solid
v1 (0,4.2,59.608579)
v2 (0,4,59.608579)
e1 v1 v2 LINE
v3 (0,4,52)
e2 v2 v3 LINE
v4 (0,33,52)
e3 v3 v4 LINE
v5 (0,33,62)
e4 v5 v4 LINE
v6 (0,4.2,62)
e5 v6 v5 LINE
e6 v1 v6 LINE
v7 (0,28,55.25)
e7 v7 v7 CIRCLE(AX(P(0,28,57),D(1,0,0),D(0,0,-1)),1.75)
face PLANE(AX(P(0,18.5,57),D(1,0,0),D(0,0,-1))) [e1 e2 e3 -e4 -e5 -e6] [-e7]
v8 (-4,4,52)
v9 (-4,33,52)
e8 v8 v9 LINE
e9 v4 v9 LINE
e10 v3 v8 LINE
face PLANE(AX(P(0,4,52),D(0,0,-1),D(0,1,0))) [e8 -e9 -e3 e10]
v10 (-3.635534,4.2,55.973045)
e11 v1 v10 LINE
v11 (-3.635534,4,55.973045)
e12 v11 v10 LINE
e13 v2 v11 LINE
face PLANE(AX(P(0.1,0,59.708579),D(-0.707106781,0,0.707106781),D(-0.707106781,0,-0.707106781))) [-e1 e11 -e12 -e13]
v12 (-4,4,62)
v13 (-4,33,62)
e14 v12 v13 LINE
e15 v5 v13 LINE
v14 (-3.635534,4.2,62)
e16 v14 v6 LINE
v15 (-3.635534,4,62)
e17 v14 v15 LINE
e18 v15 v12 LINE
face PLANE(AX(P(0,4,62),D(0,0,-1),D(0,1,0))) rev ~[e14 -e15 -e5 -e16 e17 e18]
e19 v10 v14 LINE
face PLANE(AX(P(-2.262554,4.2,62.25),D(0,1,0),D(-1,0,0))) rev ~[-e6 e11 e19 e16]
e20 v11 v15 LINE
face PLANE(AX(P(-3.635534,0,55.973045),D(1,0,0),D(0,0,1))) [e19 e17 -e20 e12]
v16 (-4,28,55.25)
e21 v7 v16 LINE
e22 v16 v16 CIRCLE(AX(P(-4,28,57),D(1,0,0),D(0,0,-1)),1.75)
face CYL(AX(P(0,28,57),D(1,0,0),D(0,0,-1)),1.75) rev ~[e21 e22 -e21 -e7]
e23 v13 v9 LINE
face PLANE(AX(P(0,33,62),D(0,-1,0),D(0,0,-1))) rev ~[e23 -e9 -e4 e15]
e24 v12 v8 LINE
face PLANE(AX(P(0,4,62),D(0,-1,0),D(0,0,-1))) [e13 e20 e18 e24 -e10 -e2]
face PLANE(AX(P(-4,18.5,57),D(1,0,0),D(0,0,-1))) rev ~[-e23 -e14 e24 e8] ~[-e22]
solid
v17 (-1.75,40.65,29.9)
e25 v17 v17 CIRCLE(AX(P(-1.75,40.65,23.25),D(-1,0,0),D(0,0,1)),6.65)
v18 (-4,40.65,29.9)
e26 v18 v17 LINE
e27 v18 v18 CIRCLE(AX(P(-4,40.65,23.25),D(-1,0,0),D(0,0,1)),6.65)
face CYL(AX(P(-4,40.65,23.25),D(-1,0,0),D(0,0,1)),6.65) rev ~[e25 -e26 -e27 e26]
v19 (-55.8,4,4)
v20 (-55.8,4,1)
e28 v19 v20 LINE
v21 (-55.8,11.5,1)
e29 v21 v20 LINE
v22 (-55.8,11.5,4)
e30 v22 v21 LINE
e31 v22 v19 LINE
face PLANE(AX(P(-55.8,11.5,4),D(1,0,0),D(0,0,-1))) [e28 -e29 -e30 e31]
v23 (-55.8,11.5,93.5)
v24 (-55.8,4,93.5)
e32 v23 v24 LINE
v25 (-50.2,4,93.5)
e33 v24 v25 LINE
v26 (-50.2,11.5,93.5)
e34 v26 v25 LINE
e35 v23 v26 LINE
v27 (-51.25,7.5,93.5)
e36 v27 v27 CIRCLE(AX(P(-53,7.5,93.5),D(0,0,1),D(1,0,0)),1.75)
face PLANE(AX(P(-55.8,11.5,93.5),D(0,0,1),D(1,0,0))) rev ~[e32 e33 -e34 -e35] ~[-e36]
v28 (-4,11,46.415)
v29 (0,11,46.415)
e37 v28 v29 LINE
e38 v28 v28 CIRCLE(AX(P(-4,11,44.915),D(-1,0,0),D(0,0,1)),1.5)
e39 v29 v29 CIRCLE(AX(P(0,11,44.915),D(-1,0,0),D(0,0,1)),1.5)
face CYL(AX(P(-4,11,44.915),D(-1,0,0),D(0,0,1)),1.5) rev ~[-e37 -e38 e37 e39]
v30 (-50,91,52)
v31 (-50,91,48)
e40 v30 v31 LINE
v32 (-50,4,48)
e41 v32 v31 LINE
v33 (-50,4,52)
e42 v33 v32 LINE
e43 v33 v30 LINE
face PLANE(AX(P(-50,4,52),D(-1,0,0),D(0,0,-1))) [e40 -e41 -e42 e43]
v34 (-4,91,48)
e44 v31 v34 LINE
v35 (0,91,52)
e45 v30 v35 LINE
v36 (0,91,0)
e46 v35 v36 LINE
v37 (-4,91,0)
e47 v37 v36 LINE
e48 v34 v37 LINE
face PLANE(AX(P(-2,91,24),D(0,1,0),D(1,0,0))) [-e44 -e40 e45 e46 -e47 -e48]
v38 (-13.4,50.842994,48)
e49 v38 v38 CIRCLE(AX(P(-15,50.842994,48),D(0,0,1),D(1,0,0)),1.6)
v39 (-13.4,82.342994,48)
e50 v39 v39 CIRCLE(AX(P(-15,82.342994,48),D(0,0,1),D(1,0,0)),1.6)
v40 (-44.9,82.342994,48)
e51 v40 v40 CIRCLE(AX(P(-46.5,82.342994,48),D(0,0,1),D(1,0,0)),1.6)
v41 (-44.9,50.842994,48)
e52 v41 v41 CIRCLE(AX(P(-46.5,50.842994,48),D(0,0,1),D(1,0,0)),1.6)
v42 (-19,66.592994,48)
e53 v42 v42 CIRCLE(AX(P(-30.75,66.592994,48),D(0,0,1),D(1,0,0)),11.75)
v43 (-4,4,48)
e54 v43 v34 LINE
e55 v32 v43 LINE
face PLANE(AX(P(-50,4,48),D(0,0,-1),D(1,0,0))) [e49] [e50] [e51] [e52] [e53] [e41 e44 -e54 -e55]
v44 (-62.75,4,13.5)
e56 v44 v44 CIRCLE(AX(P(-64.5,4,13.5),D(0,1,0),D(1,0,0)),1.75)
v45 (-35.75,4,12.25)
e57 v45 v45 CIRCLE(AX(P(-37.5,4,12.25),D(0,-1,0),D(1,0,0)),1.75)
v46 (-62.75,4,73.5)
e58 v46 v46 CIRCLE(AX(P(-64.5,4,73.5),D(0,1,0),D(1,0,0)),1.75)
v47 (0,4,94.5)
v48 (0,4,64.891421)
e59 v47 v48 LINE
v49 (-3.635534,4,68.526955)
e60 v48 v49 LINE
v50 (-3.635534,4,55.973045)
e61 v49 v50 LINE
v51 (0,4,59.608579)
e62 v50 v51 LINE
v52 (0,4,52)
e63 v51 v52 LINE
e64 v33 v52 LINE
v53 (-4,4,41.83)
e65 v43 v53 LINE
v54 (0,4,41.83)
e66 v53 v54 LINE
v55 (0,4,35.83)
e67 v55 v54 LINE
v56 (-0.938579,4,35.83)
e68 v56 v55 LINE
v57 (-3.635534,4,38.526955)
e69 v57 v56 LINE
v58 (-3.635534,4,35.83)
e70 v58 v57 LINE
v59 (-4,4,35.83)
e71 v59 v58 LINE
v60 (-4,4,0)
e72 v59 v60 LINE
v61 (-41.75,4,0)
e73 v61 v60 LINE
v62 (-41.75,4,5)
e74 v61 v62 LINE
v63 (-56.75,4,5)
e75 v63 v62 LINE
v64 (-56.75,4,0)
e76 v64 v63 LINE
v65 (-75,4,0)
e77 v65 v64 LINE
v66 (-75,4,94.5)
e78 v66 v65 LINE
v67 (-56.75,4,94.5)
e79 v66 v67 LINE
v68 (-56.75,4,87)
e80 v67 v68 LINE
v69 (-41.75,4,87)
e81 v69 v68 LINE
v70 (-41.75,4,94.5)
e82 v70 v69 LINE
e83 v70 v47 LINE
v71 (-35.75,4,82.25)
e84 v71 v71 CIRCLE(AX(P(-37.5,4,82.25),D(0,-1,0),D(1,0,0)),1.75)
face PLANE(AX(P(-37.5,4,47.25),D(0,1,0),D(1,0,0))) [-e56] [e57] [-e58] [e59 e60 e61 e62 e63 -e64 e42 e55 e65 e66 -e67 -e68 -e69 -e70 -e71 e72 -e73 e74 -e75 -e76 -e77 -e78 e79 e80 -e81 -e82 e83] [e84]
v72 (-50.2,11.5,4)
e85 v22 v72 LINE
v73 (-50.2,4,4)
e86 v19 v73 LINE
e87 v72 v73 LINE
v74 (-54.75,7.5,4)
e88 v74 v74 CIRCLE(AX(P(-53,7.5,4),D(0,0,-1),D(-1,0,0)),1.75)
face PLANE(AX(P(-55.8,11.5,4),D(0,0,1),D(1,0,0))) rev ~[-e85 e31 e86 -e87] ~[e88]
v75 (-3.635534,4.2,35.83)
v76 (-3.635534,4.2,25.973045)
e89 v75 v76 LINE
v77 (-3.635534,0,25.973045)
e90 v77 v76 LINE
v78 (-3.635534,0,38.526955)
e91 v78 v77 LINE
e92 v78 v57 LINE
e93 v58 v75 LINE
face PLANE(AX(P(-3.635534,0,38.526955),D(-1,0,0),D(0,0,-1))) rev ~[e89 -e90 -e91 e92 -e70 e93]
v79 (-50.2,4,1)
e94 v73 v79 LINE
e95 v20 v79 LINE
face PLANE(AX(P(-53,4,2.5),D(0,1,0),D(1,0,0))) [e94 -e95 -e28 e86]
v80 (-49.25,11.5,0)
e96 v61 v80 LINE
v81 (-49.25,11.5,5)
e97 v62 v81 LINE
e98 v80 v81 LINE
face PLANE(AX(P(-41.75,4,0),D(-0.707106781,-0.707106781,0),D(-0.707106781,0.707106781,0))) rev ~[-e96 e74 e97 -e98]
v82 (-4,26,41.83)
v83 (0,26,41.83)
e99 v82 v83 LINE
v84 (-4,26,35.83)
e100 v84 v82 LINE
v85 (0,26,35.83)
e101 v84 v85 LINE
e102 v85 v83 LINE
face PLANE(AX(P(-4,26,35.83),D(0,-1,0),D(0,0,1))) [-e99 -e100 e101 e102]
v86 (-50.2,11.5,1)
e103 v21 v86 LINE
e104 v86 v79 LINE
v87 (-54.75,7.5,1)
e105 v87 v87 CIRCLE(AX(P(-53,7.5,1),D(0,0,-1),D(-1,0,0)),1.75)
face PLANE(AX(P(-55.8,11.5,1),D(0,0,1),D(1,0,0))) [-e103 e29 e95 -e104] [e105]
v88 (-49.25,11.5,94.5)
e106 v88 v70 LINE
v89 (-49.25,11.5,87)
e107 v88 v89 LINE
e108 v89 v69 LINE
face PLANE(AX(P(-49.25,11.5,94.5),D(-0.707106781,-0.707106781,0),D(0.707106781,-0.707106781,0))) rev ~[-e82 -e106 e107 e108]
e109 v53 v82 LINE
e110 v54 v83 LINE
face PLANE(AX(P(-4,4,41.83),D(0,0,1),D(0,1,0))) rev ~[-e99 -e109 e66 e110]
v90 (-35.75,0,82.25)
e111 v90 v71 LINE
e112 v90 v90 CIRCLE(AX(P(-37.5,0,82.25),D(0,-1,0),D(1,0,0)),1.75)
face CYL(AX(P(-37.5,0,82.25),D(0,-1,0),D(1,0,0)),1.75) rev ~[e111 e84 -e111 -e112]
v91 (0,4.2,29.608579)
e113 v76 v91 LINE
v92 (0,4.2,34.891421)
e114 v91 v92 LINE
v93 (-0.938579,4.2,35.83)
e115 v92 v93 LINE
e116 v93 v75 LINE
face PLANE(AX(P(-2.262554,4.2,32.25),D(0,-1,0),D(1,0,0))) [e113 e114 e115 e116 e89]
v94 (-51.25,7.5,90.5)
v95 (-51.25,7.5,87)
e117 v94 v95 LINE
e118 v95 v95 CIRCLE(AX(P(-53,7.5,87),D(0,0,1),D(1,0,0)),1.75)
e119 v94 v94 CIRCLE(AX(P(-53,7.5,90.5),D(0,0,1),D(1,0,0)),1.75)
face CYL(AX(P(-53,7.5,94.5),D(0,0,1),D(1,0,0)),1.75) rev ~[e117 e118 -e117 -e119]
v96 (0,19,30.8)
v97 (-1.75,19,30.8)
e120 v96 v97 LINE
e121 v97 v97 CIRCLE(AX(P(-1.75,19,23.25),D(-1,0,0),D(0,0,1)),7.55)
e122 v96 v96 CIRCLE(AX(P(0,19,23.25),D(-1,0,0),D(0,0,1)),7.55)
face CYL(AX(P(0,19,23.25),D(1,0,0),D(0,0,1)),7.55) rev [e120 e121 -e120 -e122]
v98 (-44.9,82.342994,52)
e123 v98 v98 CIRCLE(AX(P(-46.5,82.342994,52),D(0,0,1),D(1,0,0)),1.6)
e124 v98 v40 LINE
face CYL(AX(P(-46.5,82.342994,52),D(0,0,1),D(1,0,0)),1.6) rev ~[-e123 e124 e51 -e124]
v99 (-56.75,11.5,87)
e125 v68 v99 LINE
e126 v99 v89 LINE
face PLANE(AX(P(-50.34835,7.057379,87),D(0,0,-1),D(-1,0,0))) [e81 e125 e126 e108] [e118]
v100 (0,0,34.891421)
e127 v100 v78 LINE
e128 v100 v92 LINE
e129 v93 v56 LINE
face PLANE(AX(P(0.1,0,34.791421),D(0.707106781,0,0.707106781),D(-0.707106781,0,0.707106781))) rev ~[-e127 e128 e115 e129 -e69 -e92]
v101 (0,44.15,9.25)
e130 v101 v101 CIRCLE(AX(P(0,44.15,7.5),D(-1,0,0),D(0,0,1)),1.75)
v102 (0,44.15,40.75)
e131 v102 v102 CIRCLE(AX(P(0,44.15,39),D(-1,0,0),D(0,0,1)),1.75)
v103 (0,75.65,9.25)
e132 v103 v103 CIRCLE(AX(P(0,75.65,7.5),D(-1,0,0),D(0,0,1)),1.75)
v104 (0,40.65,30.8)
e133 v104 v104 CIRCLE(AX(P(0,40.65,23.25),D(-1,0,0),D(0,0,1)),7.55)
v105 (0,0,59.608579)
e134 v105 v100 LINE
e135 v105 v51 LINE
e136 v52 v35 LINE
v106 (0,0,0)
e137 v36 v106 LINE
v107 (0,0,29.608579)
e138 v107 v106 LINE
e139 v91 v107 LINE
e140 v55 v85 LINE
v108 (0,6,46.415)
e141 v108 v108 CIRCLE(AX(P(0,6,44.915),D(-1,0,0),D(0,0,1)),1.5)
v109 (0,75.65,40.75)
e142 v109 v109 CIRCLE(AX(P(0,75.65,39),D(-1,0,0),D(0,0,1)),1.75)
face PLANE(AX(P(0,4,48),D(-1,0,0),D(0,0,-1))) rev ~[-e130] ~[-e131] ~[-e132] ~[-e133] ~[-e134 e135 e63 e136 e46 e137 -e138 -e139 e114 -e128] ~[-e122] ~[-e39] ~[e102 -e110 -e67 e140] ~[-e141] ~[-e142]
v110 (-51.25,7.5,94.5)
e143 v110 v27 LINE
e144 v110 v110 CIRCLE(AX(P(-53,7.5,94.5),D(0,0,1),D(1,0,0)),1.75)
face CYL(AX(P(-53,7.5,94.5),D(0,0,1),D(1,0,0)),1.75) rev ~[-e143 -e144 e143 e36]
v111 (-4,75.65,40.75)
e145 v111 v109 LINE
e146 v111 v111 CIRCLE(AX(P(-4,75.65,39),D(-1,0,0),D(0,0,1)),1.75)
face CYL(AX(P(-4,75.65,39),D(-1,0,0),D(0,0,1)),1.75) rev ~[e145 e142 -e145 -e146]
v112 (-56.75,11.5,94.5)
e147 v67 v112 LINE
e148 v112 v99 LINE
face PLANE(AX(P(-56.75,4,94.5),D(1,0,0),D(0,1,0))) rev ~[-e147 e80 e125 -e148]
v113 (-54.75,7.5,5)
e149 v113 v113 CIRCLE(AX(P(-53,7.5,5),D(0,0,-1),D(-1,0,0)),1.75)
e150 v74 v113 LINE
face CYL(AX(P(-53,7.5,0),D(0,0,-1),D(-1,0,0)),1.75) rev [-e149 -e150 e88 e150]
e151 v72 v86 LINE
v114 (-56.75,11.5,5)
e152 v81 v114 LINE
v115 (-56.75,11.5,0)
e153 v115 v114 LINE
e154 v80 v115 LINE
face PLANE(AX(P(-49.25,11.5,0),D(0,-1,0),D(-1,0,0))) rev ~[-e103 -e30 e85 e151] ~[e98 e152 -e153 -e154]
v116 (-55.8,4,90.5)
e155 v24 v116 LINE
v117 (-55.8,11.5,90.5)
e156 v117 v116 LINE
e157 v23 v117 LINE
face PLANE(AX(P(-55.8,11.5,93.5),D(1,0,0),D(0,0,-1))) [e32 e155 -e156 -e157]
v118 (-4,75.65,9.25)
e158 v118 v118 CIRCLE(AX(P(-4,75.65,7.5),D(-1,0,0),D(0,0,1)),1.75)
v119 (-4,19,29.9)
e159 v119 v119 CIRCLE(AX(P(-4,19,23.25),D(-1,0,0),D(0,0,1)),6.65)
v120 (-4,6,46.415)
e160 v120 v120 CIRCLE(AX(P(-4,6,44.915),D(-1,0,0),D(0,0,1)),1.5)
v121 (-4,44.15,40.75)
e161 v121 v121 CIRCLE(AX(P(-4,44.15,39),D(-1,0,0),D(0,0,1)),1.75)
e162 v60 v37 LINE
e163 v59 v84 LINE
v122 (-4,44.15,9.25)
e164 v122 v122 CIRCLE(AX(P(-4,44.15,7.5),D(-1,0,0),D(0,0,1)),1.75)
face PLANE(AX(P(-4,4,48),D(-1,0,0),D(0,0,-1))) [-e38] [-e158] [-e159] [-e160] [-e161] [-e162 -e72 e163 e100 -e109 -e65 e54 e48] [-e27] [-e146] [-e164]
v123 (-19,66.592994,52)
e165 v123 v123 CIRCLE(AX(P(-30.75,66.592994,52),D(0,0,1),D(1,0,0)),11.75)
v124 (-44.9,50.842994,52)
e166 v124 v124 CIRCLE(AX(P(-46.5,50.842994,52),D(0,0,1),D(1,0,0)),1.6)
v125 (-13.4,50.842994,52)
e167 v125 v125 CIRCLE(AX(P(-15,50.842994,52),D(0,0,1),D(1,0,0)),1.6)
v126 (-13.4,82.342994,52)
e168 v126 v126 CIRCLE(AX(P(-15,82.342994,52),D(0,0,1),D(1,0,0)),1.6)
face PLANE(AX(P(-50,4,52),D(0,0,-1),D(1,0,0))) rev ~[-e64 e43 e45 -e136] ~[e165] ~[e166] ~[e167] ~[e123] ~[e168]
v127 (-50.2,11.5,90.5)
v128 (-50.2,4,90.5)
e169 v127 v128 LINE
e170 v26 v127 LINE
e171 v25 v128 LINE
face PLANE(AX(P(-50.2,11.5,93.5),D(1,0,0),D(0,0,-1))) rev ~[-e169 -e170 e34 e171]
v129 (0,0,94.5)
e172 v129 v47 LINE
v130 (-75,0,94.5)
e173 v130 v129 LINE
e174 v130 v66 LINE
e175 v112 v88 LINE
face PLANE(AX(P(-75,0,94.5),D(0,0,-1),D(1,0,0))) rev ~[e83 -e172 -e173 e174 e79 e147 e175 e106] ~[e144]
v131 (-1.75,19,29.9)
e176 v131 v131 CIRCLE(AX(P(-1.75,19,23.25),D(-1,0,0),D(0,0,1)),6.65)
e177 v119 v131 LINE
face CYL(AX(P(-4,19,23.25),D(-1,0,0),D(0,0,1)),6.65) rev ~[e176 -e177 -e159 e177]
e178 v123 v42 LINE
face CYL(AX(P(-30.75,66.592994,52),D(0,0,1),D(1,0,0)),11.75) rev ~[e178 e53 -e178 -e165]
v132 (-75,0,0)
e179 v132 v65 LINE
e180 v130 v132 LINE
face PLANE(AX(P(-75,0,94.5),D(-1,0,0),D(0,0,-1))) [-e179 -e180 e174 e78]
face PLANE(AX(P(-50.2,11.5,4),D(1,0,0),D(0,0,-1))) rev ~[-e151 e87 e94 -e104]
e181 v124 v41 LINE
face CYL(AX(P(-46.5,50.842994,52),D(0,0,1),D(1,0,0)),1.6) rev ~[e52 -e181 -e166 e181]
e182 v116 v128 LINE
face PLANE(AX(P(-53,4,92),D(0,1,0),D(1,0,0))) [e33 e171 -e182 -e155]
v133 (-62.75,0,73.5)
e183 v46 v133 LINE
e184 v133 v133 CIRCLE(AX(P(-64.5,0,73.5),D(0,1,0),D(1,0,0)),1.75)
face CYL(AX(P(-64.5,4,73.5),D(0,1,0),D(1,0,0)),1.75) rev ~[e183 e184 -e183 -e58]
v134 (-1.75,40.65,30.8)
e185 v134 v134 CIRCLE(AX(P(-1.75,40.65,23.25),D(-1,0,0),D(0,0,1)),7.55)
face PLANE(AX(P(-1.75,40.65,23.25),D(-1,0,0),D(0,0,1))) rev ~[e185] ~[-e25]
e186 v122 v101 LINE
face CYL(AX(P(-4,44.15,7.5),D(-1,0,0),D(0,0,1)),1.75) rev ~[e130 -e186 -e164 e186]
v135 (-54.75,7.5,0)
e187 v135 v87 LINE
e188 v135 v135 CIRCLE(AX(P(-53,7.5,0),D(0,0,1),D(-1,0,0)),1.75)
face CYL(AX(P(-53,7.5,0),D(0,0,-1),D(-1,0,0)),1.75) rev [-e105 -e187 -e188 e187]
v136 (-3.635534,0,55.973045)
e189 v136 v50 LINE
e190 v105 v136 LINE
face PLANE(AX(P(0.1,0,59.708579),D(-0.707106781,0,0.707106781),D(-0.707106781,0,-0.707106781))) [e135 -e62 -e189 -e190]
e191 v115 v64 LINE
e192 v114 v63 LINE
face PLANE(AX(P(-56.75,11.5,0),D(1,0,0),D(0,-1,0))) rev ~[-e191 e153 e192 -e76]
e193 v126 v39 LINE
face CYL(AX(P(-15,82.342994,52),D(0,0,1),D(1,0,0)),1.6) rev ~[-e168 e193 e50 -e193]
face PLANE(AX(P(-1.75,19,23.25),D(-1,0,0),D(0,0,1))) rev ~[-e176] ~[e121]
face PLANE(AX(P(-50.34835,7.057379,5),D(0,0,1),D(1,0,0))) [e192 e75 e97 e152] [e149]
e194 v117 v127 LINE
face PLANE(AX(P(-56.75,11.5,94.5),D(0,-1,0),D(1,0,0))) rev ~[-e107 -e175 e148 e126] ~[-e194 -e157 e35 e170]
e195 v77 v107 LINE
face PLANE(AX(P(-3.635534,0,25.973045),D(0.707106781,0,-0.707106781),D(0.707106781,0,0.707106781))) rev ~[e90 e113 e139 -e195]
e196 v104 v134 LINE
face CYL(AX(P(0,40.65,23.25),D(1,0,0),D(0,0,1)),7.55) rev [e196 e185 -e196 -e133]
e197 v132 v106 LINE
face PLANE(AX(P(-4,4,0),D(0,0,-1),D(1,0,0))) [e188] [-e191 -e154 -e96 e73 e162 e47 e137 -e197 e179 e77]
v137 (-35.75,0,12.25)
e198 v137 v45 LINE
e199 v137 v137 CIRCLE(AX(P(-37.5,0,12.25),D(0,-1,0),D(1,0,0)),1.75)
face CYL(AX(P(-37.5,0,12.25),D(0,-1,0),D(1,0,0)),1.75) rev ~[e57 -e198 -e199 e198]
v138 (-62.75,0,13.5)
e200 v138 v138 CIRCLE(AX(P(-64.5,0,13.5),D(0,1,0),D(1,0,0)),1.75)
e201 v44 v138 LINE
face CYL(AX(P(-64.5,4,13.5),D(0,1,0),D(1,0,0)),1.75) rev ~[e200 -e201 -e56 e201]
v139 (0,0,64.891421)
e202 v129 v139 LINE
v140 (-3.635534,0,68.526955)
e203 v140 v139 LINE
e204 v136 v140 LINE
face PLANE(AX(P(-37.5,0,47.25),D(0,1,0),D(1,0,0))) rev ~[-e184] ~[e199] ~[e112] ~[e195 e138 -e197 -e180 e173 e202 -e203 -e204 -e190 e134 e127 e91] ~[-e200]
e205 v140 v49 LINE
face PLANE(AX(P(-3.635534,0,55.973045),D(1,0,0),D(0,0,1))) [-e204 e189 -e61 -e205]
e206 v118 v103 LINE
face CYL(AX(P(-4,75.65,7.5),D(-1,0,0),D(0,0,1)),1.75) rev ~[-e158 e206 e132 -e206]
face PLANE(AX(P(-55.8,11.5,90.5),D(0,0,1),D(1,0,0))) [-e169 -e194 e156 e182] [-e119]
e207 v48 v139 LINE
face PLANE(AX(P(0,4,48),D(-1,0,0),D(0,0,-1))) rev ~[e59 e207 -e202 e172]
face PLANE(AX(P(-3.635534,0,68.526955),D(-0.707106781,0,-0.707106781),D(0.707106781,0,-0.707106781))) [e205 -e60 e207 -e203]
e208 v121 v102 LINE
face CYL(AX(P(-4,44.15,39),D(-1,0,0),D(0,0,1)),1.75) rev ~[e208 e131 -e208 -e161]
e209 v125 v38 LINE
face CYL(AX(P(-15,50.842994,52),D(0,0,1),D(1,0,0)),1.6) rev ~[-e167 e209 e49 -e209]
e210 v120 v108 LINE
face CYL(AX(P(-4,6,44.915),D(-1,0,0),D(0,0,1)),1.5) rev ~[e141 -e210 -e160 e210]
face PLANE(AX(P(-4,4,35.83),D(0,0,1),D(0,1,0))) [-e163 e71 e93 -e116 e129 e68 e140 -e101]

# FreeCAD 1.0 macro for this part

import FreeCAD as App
import Part
import Sketcher
from FreeCAD import Vector
Q = App.Units.Quantity


def add_polygon(sketch, points):
    """Adds a closed chain of lines whose ends are joined by coincident constraints."""
    first, n = sketch.GeometryCount, len(points)
    for a, b in zip(points, points[1:] + points[:1]):
        sketch.addGeometry(Part.LineSegment(App.Vector(*a, 0), App.Vector(*b, 0)), False)
    for i in range(n):
        sketch.addConstraint(Sketcher.Constraint("Coincident", first + i, 2, first + (i + 1) % n, 1))

doc = App.newDocument("Part")
body = doc.addObject("PartDesign::Body", "Body")

sketch1 = body.newObject("Sketcher::SketchObject", "Sketch")
sketch1.AttachmentSupport = (doc.getObject("XZ_Plane"), [""])
sketch1.MapMode = "FlatFace"
add_polygon(sketch1, [(-75, 0), (-75, 94), (0, 94), (0, 0)])
sketch1.addConstraint(Sketcher.Constraint("Vertical", 0))
sketch1.addConstraint(Sketcher.Constraint("Horizontal", 1))
sketch1.addConstraint(Sketcher.Constraint("Vertical", 2))
sketch1.addConstraint(Sketcher.Constraint("Horizontal", 3))
sketch1.addConstraint(Sketcher.Constraint("Coincident", 2, 2, -1, 1))
sketch1.addConstraint(Sketcher.Constraint("DistanceX", 1, 1, 1, 2, 75.0))
sketch1.addConstraint(Sketcher.Constraint("DistanceY", 0, 1, 0, 2, 94.5))
pad1 = body.newObject("PartDesign::Pad", "Pad")
pad1.Profile = sketch1
pad1.Length = 4
pad1.Reversed = True

sketch2 = body.newObject("Sketcher::SketchObject", "Sketch001")
sketch2.AttachmentSupport = (doc.getObject("XZ_Plane"), [""])
sketch2.MapMode = "FlatFace"
sketch2.AttachmentOffset = App.Placement(Vector(0, 0, -4), App.Rotation())
add_polygon(sketch2, [(-50, 48), (-50, 52), (0, 52), (0, 48)])
sketch2.addConstraint(Sketcher.Constraint("Vertical", 0))
sketch2.addConstraint(Sketcher.Constraint("Horizontal", 1))
sketch2.addConstraint(Sketcher.Constraint("Vertical", 2))
sketch2.addConstraint(Sketcher.Constraint("Horizontal", 3))
sketch2.addConstraint(Sketcher.Constraint("PointOnObject", 1, 2, -2))
sketch2.addConstraint(Sketcher.Constraint("DistanceX", 1, 1, 1, 2, 50.0))
sketch2.addConstraint(Sketcher.Constraint("DistanceY", 0, 1, 0, 2, 4.0))
sketch2.addConstraint(Sketcher.Constraint("DistanceY", -1, 1, 0, 2, 52.0))
pad2 = body.newObject("PartDesign::Pad", "Pad001")
pad2.Profile = sketch2
pad2.Length = 87
pad2.Reversed = True

sketch3 = body.newObject("Sketcher::SketchObject", "Sketch002")
sketch3.AttachmentSupport = (doc.getObject("XZ_Plane"), [""])
sketch3.MapMode = "FlatFace"
sketch3.AttachmentOffset = App.Placement(Vector(0, 0, -4), App.Rotation())
add_polygon(sketch3, [(-4, 0), (-4, 48), (0, 48), (0, 0)])
sketch3.addConstraint(Sketcher.Constraint("Vertical", 0))
sketch3.addConstraint(Sketcher.Constraint("Horizontal", 1))
sketch3.addConstraint(Sketcher.Constraint("Vertical", 2))
sketch3.addConstraint(Sketcher.Constraint("Horizontal", 3))
sketch3.addConstraint(Sketcher.Constraint("Coincident", 2, 2, -1, 1))
sketch3.addConstraint(Sketcher.Constraint("DistanceX", 1, 1, 1, 2, 4.0))
sketch3.addConstraint(Sketcher.Constraint("DistanceY", 0, 1, 0, 2, 48.0))
pad3 = body.newObject("PartDesign::Pad", "Pad002")
pad3.Profile = sketch3
pad3.Length = 87
pad3.Reversed = True

sketch4 = body.newObject("Sketcher::SketchObject", "Sketch003")
sketch4.AttachmentSupport = (doc.getObject("XY_Plane"), [""])
sketch4.MapMode = "FlatFace"
sketch4.AttachmentOffset = App.Placement(Vector(0, 0, 52), App.Rotation())
sketch4.addGeometry(Part.Circle(Vector(-15, 82.3, 0), Vector(0, 0, 1), 1.6), False)
sketch4.addGeometry(Part.Circle(Vector(-46.5, 82.3, 0), Vector(0, 0, 1), 1.6), False)
sketch4.addGeometry(Part.Circle(Vector(-46.5, 50.8, 0), Vector(0, 0, 1), 1.6), False)
sketch4.addGeometry(Part.Circle(Vector(-15, 50.8, 0), Vector(0, 0, 1), 1.6), False)
sketch4.addGeometry(Part.Circle(Vector(-30.8, 66.6, 0), Vector(0, 0, 1), 11.8), False)
sketch4.addConstraint(Sketcher.Constraint("Equal", 0, 1))
sketch4.addConstraint(Sketcher.Constraint("Equal", 1, 2))
sketch4.addConstraint(Sketcher.Constraint("Equal", 2, 3))
sketch4.addConstraint(Sketcher.Constraint("Horizontal", 0, 3, 1, 3))
sketch4.addConstraint(Sketcher.Constraint("Horizontal", 2, 3, 3, 3))
sketch4.addConstraint(Sketcher.Constraint("Vertical", 1, 3, 2, 3))
sketch4.addConstraint(Sketcher.Constraint("Vertical", 0, 3, 3, 3))
sketch4.addConstraint(Sketcher.Constraint("Diameter", 0, 3.2))
sketch4.addConstraint(Sketcher.Constraint("Diameter", 4, 23.5))
sketch4.addConstraint(Sketcher.Constraint("DistanceX", 0, 3, -1, 1, 15.0))
sketch4.addConstraint(Sketcher.Constraint("DistanceX", 1, 3, -1, 1, 46.5))
sketch4.addConstraint(Sketcher.Constraint("DistanceY", 2, 3, 1, 3, 31.5))
sketch4.addConstraint(Sketcher.Constraint("DistanceX", 4, 3, -1, 1, 30.75))
sketch4.addConstraint(Sketcher.Constraint("DistanceY", 4, 3, 0, 3, 15.75))
sketch4.addConstraint(Sketcher.Constraint("DistanceY", -1, 1, 0, 3, 82.342994))
pocket1 = body.newObject("PartDesign::Pocket", "Pocket")
pocket1.Profile = sketch4
pocket1.Length = 5

sketch5 = body.newObject("Sketcher::SketchObject", "Sketch004")
sketch5.AttachmentSupport = (doc.getObject("YZ_Plane"), [""])
sketch5.MapMode = "FlatFace"
sketch5.AttachmentOffset = App.Placement(Vector(0, 0, -4), App.Rotation())
sketch5.addGeometry(Part.Circle(Vector(19, 23, 0), Vector(0, 0, 1), 7), False)
sketch5.addGeometry(Part.Circle(Vector(41, 23, 0), Vector(0, 0, 1), 7), False)
sketch5.addConstraint(Sketcher.Constraint("Equal", 0, 1))
sketch5.addConstraint(Sketcher.Constraint("Horizontal", 0, 3, 1, 3))
sketch5.addConstraint(Sketcher.Constraint("Diameter", 0, 13.3))
sketch5.addConstraint(Sketcher.Constraint("DistanceX", -1, 1, 0, 3, 19.0))
sketch5.addConstraint(Sketcher.Constraint("DistanceY", -1, 1, 0, 3, 23.25))
sketch5.addConstraint(Sketcher.Constraint("DistanceX", -1, 1, 1, 3, 40.65))
pocket2 = body.newObject("PartDesign::Pocket", "Pocket001")
pocket2.Profile = sketch5
pocket2.Length = 5
pocket2.Reversed = True

sketch6 = body.newObject("Sketcher::SketchObject", "Sketch005")
sketch6.AttachmentSupport = (doc.getObject("YZ_Plane"), [""])
sketch6.MapMode = "FlatFace"
sketch6.addGeometry(Part.Circle(Vector(19, 23, 0), Vector(0, 0, 1), 8), False)
sketch6.addGeometry(Part.Circle(Vector(41, 23, 0), Vector(0, 0, 1), 8), False)
sketch6.addConstraint(Sketcher.Constraint("Equal", 0, 1))
sketch6.addConstraint(Sketcher.Constraint("Horizontal", 0, 3, 1, 3))
sketch6.addConstraint(Sketcher.Constraint("Diameter", 0, 15.1))
sketch6.addConstraint(Sketcher.Constraint("DistanceX", -1, 1, 0, 3, 19.0))
sketch6.addConstraint(Sketcher.Constraint("DistanceY", -1, 1, 0, 3, 23.25))
sketch6.addConstraint(Sketcher.Constraint("DistanceX", -1, 1, 1, 3, 40.65))
pocket3 = body.newObject("PartDesign::Pocket", "Pocket002")
pocket3.Profile = sketch6
pocket3.Length = 1.75

sketch7 = body.newObject("Sketcher::SketchObject", "Sketch006")
sketch7.AttachmentSupport = (doc.getObject("YZ_Plane"), [""])
sketch7.MapMode = "FlatFace"
sketch7.AttachmentOffset = App.Placement(Vector(0, 0, -4), App.Rotation())
sketch7.addGeometry(Part.Circle(Vector(75.7, 7.5, 0), Vector(0, 0, 1), 1.8), False)
sketch7.addGeometry(Part.Circle(Vector(75.7, 39, 0), Vector(0, 0, 1), 1.8), False)
sketch7.addGeometry(Part.Circle(Vector(44.1, 7.5, 0), Vector(0, 0, 1), 1.8), False)
sketch7.addGeometry(Part.Circle(Vector(44.1, 39, 0), Vector(0, 0, 1), 1.8), False)
sketch7.addConstraint(Sketcher.Constraint("Equal", 0, 1))
sketch7.addConstraint(Sketcher.Constraint("Equal", 1, 2))
sketch7.addConstraint(Sketcher.Constraint("Equal", 2, 3))
sketch7.addConstraint(Sketcher.Constraint("Horizontal", 0, 3, 2, 3))
sketch7.addConstraint(Sketcher.Constraint("Horizontal", 1, 3, 3, 3))
sketch7.addConstraint(Sketcher.Constraint("Vertical", 0, 3, 1, 3))
sketch7.addConstraint(Sketcher.Constraint("Vertical", 2, 3, 3, 3))
sketch7.addConstraint(Sketcher.Constraint("Diameter", 0, 3.5))
sketch7.addConstraint(Sketcher.Constraint("DistanceY", -1, 1, 1, 3, 39.0))
sketch7.addConstraint(Sketcher.Constraint("DistanceY", -1, 1, 0, 3, 7.5))
sketch7.addConstraint(Sketcher.Constraint("DistanceX", 2, 3, 0, 3, 31.5))
sketch7.addConstraint(Sketcher.Constraint("DistanceX", -1, 1, 0, 3, 75.65))
pocket4 = body.newObject("PartDesign::Pocket", "Pocket003")
pocket4.Profile = sketch7
pocket4.Length = 4
pocket4.Reversed = True
body2 = doc.addObject("PartDesign::Body", "Body001")

sketch8 = body2.newObject("Sketcher::SketchObject", "Sketch007")
sketch8.AttachmentSupport = (doc.getObject("YZ_Plane001"), [""])
sketch8.MapMode = "FlatFace"
add_polygon(sketch8, [(33, 62), (4, 62), (4, 52), (33, 52)])
sketch8.addGeometry(Part.Circle(Vector(28, 57, 0), Vector(0, 0, 1), 1.8), False)
sketch8.addConstraint(Sketcher.Constraint("Horizontal", 0))
sketch8.addConstraint(Sketcher.Constraint("Vertical", 1))
sketch8.addConstraint(Sketcher.Constraint("Horizontal", 2))
sketch8.addConstraint(Sketcher.Constraint("Vertical", 3))
sketch8.addConstraint(Sketcher.Constraint("Diameter", 4, 3.5))
sketch8.addConstraint(Sketcher.Constraint("DistanceX", 0, 2, 0, 1, 29.0))
sketch8.addConstraint(Sketcher.Constraint("DistanceY", 1, 2, 1, 1, 10.0))
sketch8.addConstraint(Sketcher.Constraint("DistanceX", -1, 1, 4, 3, 28.0))
sketch8.addConstraint(Sketcher.Constraint("DistanceY", -1, 1, 4, 3, 57.0))
sketch8.addConstraint(Sketcher.Constraint("DistanceX", -1, 1, 0, 2, 4.0))
sketch8.addConstraint(Sketcher.Constraint("DistanceY", -1, 1, 0, 2, 62.0))
pad4 = body2.newObject("PartDesign::Pad", "Pad003")
pad4.Profile = sketch8
pad4.Length = 4
pad4.Reversed = True
body3 = doc.addObject("PartDesign::Body", "Body002")
body3.AllowCompound = True

sketch9 = body3.newObject("Sketcher::SketchObject", "Sketch008")
sketch9.AttachmentSupport = (doc.getObject("XZ_Plane002"), [""])
sketch9.MapMode = "FlatFace"
add_polygon(sketch9, [(-4, 56), (0, 60), (0, 65), (-4, 69)])
add_polygon(sketch9, [(0, 30), (0, 35), (-4, 39), (-4, 26)])
sketch9.addConstraint(Sketcher.Constraint("Vertical", 1))
sketch9.addConstraint(Sketcher.Constraint("Vertical", 3))
sketch9.addConstraint(Sketcher.Constraint("Vertical", 4))
sketch9.addConstraint(Sketcher.Constraint("Vertical", 6))
sketch9.addConstraint(Sketcher.Constraint("Perpendicular", 0, 2))
sketch9.addConstraint(Sketcher.Constraint("Parallel", 2, 5))
sketch9.addConstraint(Sketcher.Constraint("Perpendicular", 5, 7))
sketch9.addConstraint(Sketcher.Constraint("Vertical", 1, 2, 4, 2))
sketch9.addConstraint(Sketcher.Constraint("Vertical", 3, 2, 5, 2))
sketch9.addConstraint(Sketcher.Constraint("Equal", 1, 4))
sketch9.addConstraint(Sketcher.Constraint("Equal", 0, 2))
sketch9.addConstraint(Sketcher.Constraint("DistanceY", 4, 2, 1, 2, 30.0))
sketch9.addConstraint(Sketcher.Constraint("DistanceX", -1, 1, 0, 2, 0.1))
sketch9.addConstraint(Sketcher.Constraint("DistanceY", 3, 2, 3, 1, 12.553911))
sketch9.addConstraint(Sketcher.Constraint("DistanceY", 1, 1, 1, 2, 5.082843))
sketch9.addConstraint(Sketcher.Constraint("DistanceY", -1, 1, 0, 2, 59.708579))
pad5 = body3.newObject("PartDesign::Pad", "Pad004")
pad5.Profile = sketch9
pad5.Length = 4.2
pad5.Reversed = True
doc.recompute()

body4 = doc.addObject("PartDesign::Body", "Body003")
body4.BaseFeature = body3
boolean = body.newObject("PartDesign::Boolean", "Boolean")
boolean.Type = "Cut"
boolean.addObjects([body4])
doc.recompute()

sketch10 = body.newObject("Sketcher::SketchObject", "Sketch009")
sketch10.AttachmentSupport = (doc.getObject("XY_Plane"), [""])
sketch10.MapMode = "FlatFace"
add_polygon(sketch10, [(-49, 12), (-57, 12), (-57, 4), (-42, 4)])
sketch10.addConstraint(Sketcher.Constraint("Horizontal", 0))
sketch10.addConstraint(Sketcher.Constraint("Vertical", 1))
sketch10.addConstraint(Sketcher.Constraint("Horizontal", 2))
sketch10.addConstraint(Sketcher.Constraint("Equal", 0, 1))
sketch10.addConstraint(Sketcher.Constraint("DistanceX", 2, 1, 2, 2, 15.0))
sketch10.addConstraint(Sketcher.Constraint("Angle", 3, Q("135 deg")))
sketch10.addConstraint(Sketcher.Constraint("DistanceY", -1, 1, 1, 2, 4.0))
sketch10.addConstraint(Sketcher.Constraint("DistanceX", 0, 2, -1, 1, 56.75))
pad6 = body.newObject("PartDesign::Pad", "Pad005")
pad6.Profile = sketch10
pad6.Length = 5

sketch11 = body.newObject("Sketcher::SketchObject", "Sketch010")
sketch11.AttachmentSupport = (doc.getObject("XY_Plane"), [""])
sketch11.MapMode = "FlatFace"
sketch11.addGeometry(Part.Circle(Vector(-53, 7.5, 0), Vector(0, 0, 1), 1.8), False)
sketch11.addConstraint(Sketcher.Constraint("Diameter", 0, 3.5))
sketch11.addConstraint(Sketcher.Constraint("DistanceX", 0, 3, -1, 1, 53.0))
sketch11.addConstraint(Sketcher.Constraint("DistanceY", -1, 1, 0, 3, 7.5))
pocket5 = body.newObject("PartDesign::Pocket", "Pocket004")
pocket5.Profile = sketch11
pocket5.Length = 9
pocket5.Reversed = True

sketch12 = body.newObject("Sketcher::SketchObject", "Sketch011")
sketch12.AttachmentSupport = (doc.getObject("XZ_Plane"), [""])
sketch12.MapMode = "FlatFace"
sketch12.AttachmentOffset = App.Placement(Vector(0, 0, -11.5), App.Rotation())
add_polygon(sketch12, [(-55.8, 1), (-55.8, 4), (-50.2, 4), (-50.2, 1)])
sketch12.addConstraint(Sketcher.Constraint("Vertical", 0))
sketch12.addConstraint(Sketcher.Constraint("Horizontal", 1))
sketch12.addConstraint(Sketcher.Constraint("Vertical", 2))
sketch12.addConstraint(Sketcher.Constraint("Horizontal", 3))
sketch12.addConstraint(Sketcher.Constraint("DistanceY", 0, 1, 0, 2, 3.0))
sketch12.addConstraint(Sketcher.Constraint("DistanceX", 1, 1, 1, 2, 5.6))
sketch12.addConstraint(Sketcher.Constraint("DistanceY", -1, 1, 0, 2, 4.0))
sketch12.addConstraint(Sketcher.Constraint("DistanceX", 0, 2, -1, 1, 55.8))
pocket6 = body.newObject("PartDesign::Pocket", "Pocket005")
pocket6.Profile = sketch12
pocket6.Length = 7.5
pocket6.Reversed = True

sketch13 = body.newObject("Sketcher::SketchObject", "Sketch012")
sketch13.AttachmentSupport = (doc.getObject("XY_Plane"), [""])
sketch13.MapMode = "FlatFace"
sketch13.AttachmentOffset = App.Placement(Vector(0, 0, 94.5), App.Rotation())
add_polygon(sketch13, [(-57, 12), (-57, 4), (-42, 4), (-49, 12)])
sketch13.addConstraint(Sketcher.Constraint("Vertical", 0))
sketch13.addConstraint(Sketcher.Constraint("Horizontal", 1))
sketch13.addConstraint(Sketcher.Constraint("Horizontal", 3))
sketch13.addConstraint(Sketcher.Constraint("Equal", 3, 0))
sketch13.addConstraint(Sketcher.Constraint("DistanceX", 1, 1, 1, 2, 15.0))
sketch13.addConstraint(Sketcher.Constraint("Angle", 2, Q("135 deg")))
sketch13.addConstraint(Sketcher.Constraint("DistanceY", -1, 1, 0, 2, 4.0))
sketch13.addConstraint(Sketcher.Constraint("DistanceX", 0, 2, -1, 1, 56.75))
pad7 = body.newObject("PartDesign::Pad", "Pad006")
pad7.Profile = sketch13
pad7.Length = 7.5
pad7.Reversed = True

sketch14 = body.newObject("Sketcher::SketchObject", "Sketch013")
sketch14.AttachmentSupport = (doc.getObject("XY_Plane"), [""])
sketch14.MapMode = "FlatFace"
sketch14.AttachmentOffset = App.Placement(Vector(0, 0, 94.5), App.Rotation())
sketch14.addGeometry(Part.Circle(Vector(-53, 7.5, 0), Vector(0, 0, 1), 1.8), False)
sketch14.addConstraint(Sketcher.Constraint("Diameter", 0, 3.5))
sketch14.addConstraint(Sketcher.Constraint("DistanceX", 0, 3, -1, 1, 53.0))
sketch14.addConstraint(Sketcher.Constraint("DistanceY", -1, 1, 0, 3, 7.5))
pocket7 = body.newObject("PartDesign::Pocket", "Pocket006")
pocket7.Profile = sketch14
pocket7.Length = 7.5

sketch15 = body.newObject("Sketcher::SketchObject", "Sketch014")
sketch15.AttachmentSupport = (doc.getObject("XZ_Plane"), [""])
sketch15.MapMode = "FlatFace"
sketch15.AttachmentOffset = App.Placement(Vector(0, 0, -11.5), App.Rotation())
add_polygon(sketch15, [(-55.8, 90.5), (-55.8, 93.5), (-50.2, 93.5), (-50.2, 90.5)])
sketch15.addConstraint(Sketcher.Constraint("Vertical", 0))
sketch15.addConstraint(Sketcher.Constraint("Horizontal", 1))
sketch15.addConstraint(Sketcher.Constraint("Vertical", 2))
sketch15.addConstraint(Sketcher.Constraint("Horizontal", 3))
sketch15.addConstraint(Sketcher.Constraint("DistanceY", 0, 1, 0, 2, 3.0))
sketch15.addConstraint(Sketcher.Constraint("DistanceX", 1, 1, 1, 2, 5.6))
sketch15.addConstraint(Sketcher.Constraint("DistanceX", 0, 2, -1, 1, 55.8))
sketch15.addConstraint(Sketcher.Constraint("DistanceY", -1, 1, 0, 2, 93.5))
pocket8 = body.newObject("PartDesign::Pocket", "Pocket007")
pocket8.Profile = sketch15
pocket8.Length = 7.5
pocket8.Reversed = True

sketch16 = body.newObject("Sketcher::SketchObject", "Sketch015")
sketch16.AttachmentSupport = (doc.getObject("XZ_Plane"), [""])
sketch16.MapMode = "FlatFace"
sketch16.addGeometry(Part.Circle(Vector(-37.5, 82.2, 0), Vector(0, 0, 1), 1.8), False)
sketch16.addGeometry(Part.Circle(Vector(-37.5, 12.2, 0), Vector(0, 0, 1), 1.8), False)
sketch16.addConstraint(Sketcher.Constraint("Equal", 0, 1))
sketch16.addConstraint(Sketcher.Constraint("Vertical", 0, 3, 1, 3))
sketch16.addConstraint(Sketcher.Constraint("Diameter", 0, 3.5))
sketch16.addConstraint(Sketcher.Constraint("DistanceY", 1, 3, 0, 3, 70.0))
sketch16.addConstraint(Sketcher.Constraint("DistanceX", 0, 3, -1, 1, 37.5))
sketch16.addConstraint(Sketcher.Constraint("DistanceY", -1, 1, 0, 3, 82.25))
pocket9 = body.newObject("PartDesign::Pocket", "Pocket008")
pocket9.Profile = sketch16
pocket9.Length = 10

sketch17 = body.newObject("Sketcher::SketchObject", "Sketch016")
sketch17.AttachmentSupport = (doc.getObject("YZ_Plane"), [""])
sketch17.MapMode = "FlatFace"
sketch17.AttachmentOffset = App.Placement(Vector(0, 0, -4), App.Rotation())
sketch17.addGeometry(Part.Circle(Vector(11, 44.9, 0), Vector(0, 0, 1), 1.5), False)
sketch17.addGeometry(Part.Circle(Vector(6, 44.9, 0), Vector(0, 0, 1), 1.5), False)
add_polygon(sketch17, [(26, 35.8), (4, 35.8), (4, 41.8), (26, 41.8)])
sketch17.addConstraint(Sketcher.Constraint("Horizontal", 2))
sketch17.addConstraint(Sketcher.Constraint("Vertical", 3))
sketch17.addConstraint(Sketcher.Constraint("Horizontal", 4))
sketch17.addConstraint(Sketcher.Constraint("Vertical", 5))
sketch17.addConstraint(Sketcher.Constraint("Equal", 0, 1))
sketch17.addConstraint(Sketcher.Constraint("Horizontal", 0, 3, 1, 3))
sketch17.addConstraint(Sketcher.Constraint("Diameter", 0, 3.0))
sketch17.addConstraint(Sketcher.Constraint("DistanceX", 2, 2, 2, 1, 22.0))
sketch17.addConstraint(Sketcher.Constraint("DistanceY", 3, 1, 3, 2, 6.0))
sketch17.addConstraint(Sketcher.Constraint("DistanceX", -1, 1, 0, 3, 11.0))
sketch17.addConstraint(Sketcher.Constraint("DistanceX", -1, 1, 1, 3, 6.0))
sketch17.addConstraint(Sketcher.Constraint("DistanceX", -1, 1, 2, 2, 4.0))
sketch17.addConstraint(Sketcher.Constraint("DistanceY", -1, 1, 2, 2, 35.83))
sketch17.addConstraint(Sketcher.Constraint("DistanceY", -1, 1, 0, 3, 44.915))
pocket10 = body.newObject("PartDesign::Pocket", "Pocket009")
pocket10.Profile = sketch17
pocket10.Length = 4
pocket10.Reversed = True

sketch18 = body.newObject("Sketcher::SketchObject", "Sketch017")
sketch18.AttachmentSupport = (doc.getObject("XZ_Plane"), [""])
sketch18.MapMode = "FlatFace"
sketch18.AttachmentOffset = App.Placement(Vector(0, 0, -4), App.Rotation())
sketch18.addGeometry(Part.Circle(Vector(-64.5, 13.5, 0), Vector(0, 0, 1), 1.8), False)
sketch18.addGeometry(Part.Circle(Vector(-64.5, 73.5, 0), Vector(0, 0, 1), 1.8), False)
sketch18.addConstraint(Sketcher.Constraint("Equal", 0, 1))
sketch18.addConstraint(Sketcher.Constraint("Vertical", 0, 3, 1, 3))
sketch18.addConstraint(Sketcher.Constraint("Diameter", 0, 3.5))
sketch18.addConstraint(Sketcher.Constraint("DistanceY", 0, 3, 1, 3, 60.0))
sketch18.addConstraint(Sketcher.Constraint("DistanceX", 0, 3, -1, 1, 64.5))
sketch18.addConstraint(Sketcher.Constraint("DistanceY", -1, 1, 0, 3, 13.5))
pocket11 = body.newObject("PartDesign::Pocket", "Pocket010")
pocket11.Profile = sketch18
pocket11.Length = 4
pocket11.Reversed = True
doc.recompute()

boolean2 = body2.newObject("PartDesign::Boolean", "Boolean001")
boolean2.Type = "Cut"
boolean2.addObjects([body3])

doc.recompute()
